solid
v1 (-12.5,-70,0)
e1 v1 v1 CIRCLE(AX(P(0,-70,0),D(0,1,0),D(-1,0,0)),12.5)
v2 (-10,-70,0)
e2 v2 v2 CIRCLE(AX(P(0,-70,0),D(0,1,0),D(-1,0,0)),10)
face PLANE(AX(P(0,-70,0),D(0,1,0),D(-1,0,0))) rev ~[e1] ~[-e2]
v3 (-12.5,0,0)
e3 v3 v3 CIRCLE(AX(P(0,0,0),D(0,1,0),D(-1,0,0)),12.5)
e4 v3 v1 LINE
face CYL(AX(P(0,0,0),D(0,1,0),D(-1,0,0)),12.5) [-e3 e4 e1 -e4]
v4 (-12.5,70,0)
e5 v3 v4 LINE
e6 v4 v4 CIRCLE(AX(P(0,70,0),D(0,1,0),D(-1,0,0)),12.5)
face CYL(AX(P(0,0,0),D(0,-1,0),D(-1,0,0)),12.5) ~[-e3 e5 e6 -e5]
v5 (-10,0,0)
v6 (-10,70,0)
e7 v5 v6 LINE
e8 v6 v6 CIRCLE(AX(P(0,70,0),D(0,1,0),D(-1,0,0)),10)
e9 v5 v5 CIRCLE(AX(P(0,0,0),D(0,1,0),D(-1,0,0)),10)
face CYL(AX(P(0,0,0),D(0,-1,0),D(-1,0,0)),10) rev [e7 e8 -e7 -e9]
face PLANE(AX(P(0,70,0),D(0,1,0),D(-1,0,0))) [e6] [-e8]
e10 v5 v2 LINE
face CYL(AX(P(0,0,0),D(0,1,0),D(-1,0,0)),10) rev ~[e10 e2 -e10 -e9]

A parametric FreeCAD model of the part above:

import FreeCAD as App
import Part
import Sketcher
from FreeCAD import Vector
Q = App.Units.Quantity

doc = App.newDocument("Part")
params = doc.addObject("Spreadsheet::Sheet", "Params")
for row, (alias, value) in enumerate([
    ("sketch1_diameter", "25 mm"),
    ("sketch1_diameter2", "20 mm"),
    ("pad1_length", "140 mm"),
], start=1):
    params.set(f"A{row}", alias)
    params.set(f"B{row}", "=" + value)
    params.setAlias(f"B{row}", alias)

body = doc.addObject("PartDesign::Body", "Body")

sketch1 = body.newObject("Sketcher::SketchObject", "Sketch")
sketch1.AttachmentSupport = (doc.getObject("XZ_Plane"), [""])
sketch1.MapMode = "FlatFace"
sketch1.addGeometry(Part.Circle(Vector(0, 0, 0), Vector(0, 0, 1), 12), False)
sketch1.addGeometry(Part.Circle(Vector(0, 0, 0), Vector(0, 0, 1), 10), False)
sketch1.addConstraint(Sketcher.Constraint("Coincident", 0, 3, -1, 1))
sketch1.addConstraint(Sketcher.Constraint("Coincident", 1, 3, -1, 1))
sketch1.addConstraint(Sketcher.Constraint("Diameter", 0, Q("25 mm")))
sketch1.addConstraint(Sketcher.Constraint("Diameter", 1, Q("20 mm")))
sketch1.setExpression("Constraints[2]", "Params.sketch1_diameter")
sketch1.setExpression("Constraints[3]", "Params.sketch1_diameter2")
pad1 = body.newObject("PartDesign::Pad", "Pad")
pad1.Profile = sketch1
pad1.setExpression("Length", "Params.pad1_length")
pad1.Midplane = True

doc.recompute()
